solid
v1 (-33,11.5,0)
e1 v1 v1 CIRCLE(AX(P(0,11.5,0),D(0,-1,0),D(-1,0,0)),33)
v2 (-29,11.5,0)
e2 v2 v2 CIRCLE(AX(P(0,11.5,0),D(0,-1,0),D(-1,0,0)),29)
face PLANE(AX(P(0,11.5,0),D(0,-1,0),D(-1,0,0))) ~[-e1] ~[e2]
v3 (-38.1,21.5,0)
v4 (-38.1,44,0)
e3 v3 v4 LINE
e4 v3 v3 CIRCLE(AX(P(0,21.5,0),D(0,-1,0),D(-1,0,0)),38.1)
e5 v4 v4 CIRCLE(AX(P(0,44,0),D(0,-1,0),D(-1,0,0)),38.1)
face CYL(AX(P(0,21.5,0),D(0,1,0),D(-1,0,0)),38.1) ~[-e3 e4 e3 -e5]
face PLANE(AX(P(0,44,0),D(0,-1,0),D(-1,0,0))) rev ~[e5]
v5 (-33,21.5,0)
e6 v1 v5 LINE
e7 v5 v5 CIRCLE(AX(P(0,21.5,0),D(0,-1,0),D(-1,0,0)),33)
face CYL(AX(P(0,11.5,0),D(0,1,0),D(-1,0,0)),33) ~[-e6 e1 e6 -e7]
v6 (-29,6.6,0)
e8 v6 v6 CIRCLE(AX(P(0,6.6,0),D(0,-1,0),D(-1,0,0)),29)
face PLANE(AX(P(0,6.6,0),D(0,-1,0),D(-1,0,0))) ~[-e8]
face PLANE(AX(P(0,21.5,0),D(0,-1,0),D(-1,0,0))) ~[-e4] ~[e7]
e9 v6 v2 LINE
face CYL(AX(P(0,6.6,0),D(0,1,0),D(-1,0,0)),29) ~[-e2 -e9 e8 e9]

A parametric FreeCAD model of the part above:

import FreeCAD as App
import Part
import Sketcher
from FreeCAD import Vector
Q = App.Units.Quantity

doc = App.newDocument("Part")
body = doc.addObject("PartDesign::Body", "Body")

sketch1 = body.newObject("Sketcher::SketchObject", "Sketch")
sketch1.AttachmentSupport = (doc.getObject("XY_Plane"), [""])
sketch1.MapMode = "FlatFace"
sketch1.addGeometry(Part.LineSegment(Vector(-29, 11.5, 0), Vector(-29, 6.6, 0)), False)
sketch1.addGeometry(Part.LineSegment(Vector(-29, 6.6, 0), Vector(0, 6.6, 0)), False)
sketch1.addGeometry(Part.LineSegment(Vector(0, 6.6, 0), Vector(0, 44, 0)), False)
sketch1.addGeometry(Part.LineSegment(Vector(0, 44, 0), Vector(-38.1, 44, 0)), False)
sketch1.addGeometry(Part.LineSegment(Vector(-38.1, 44, 0), Vector(-38.1, 21.5, 0)), False)
sketch1.addGeometry(Part.LineSegment(Vector(-38.1, 21.5, 0), Vector(-33, 21.5, 0)), False)
sketch1.addGeometry(Part.LineSegment(Vector(-33, 21.5, 0), Vector(-33, 11.5, 0)), False)
sketch1.addGeometry(Part.LineSegment(Vector(-33, 11.5, 0), Vector(-29, 11.5, 0)), False)
sketch1.addConstraint(Sketcher.Constraint("Coincident", 0, 2, 1, 1))
sketch1.addConstraint(Sketcher.Constraint("Coincident", 1, 2, 2, 1))
sketch1.addConstraint(Sketcher.Constraint("Coincident", 2, 2, 3, 1))
sketch1.addConstraint(Sketcher.Constraint("Coincident", 3, 2, 4, 1))
sketch1.addConstraint(Sketcher.Constraint("Coincident", 4, 2, 5, 1))
sketch1.addConstraint(Sketcher.Constraint("Coincident", 5, 2, 6, 1))
sketch1.addConstraint(Sketcher.Constraint("Coincident", 6, 2, 7, 1))
sketch1.addConstraint(Sketcher.Constraint("Coincident", 7, 2, 0, 1))
sketch1.addConstraint(Sketcher.Constraint("Vertical", 0))
sketch1.addConstraint(Sketcher.Constraint("Horizontal", 1))
sketch1.addConstraint(Sketcher.Constraint("Vertical", 2))
sketch1.addConstraint(Sketcher.Constraint("Horizontal", 3))
sketch1.addConstraint(Sketcher.Constraint("Vertical", 4))
sketch1.addConstraint(Sketcher.Constraint("Horizontal", 5))
sketch1.addConstraint(Sketcher.Constraint("Vertical", 6))
sketch1.addConstraint(Sketcher.Constraint("Horizontal", 7))
sketch1.addConstraint(Sketcher.Constraint("PointOnObject", 1, 2, -2))
sketch1.addConstraint(Sketcher.Constraint("DistanceX", 1, 1, 1, 2, Q("29 mm")))
sketch1.addConstraint(Sketcher.Constraint("DistanceX", 7, 1, 7, 2, Q("4 mm")))
sketch1.addConstraint(Sketcher.Constraint("DistanceY", 6, 2, 6, 1, Q("10 mm")))
sketch1.addConstraint(Sketcher.Constraint("DistanceX", 3, 2, 3, 1, Q("38.1 mm")))
sketch1.addConstraint(Sketcher.Constraint("DistanceY", 0, 2, 0, 1, Q("4.9 mm")))
sketch1.addConstraint(Sketcher.Constraint("DistanceY", 2, 1, 2, 2, Q("37.4 mm")))
sketch1.addConstraint(Sketcher.Constraint("DistanceY", -1, 1, 2, 2, Q("44 mm")))
revolution = body.newObject("PartDesign::Revolution", "Revolution")
revolution.Profile = sketch1
revolution.ReferenceAxis = (sketch1, ["V_Axis"])
revolution.Angle = 360

doc.recompute()
